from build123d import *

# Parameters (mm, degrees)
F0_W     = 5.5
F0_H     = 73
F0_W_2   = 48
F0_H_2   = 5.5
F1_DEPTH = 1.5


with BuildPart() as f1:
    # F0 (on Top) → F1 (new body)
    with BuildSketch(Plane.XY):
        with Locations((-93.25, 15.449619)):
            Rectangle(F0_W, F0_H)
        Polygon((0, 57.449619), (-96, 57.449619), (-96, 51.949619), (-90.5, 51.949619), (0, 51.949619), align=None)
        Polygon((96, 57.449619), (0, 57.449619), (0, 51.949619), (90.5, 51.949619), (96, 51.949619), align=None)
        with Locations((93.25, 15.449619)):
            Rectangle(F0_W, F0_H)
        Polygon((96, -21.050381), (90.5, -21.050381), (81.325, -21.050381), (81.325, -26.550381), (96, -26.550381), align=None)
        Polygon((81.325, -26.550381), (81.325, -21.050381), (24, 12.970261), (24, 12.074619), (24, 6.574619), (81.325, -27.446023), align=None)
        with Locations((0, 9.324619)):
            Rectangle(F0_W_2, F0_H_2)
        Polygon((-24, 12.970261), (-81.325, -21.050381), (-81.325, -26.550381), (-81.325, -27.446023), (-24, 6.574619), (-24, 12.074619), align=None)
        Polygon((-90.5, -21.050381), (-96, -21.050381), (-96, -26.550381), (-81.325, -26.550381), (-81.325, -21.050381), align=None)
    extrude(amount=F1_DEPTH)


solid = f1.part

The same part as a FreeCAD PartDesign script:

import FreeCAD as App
import Part
import Sketcher

V = App.Vector

doc = App.newDocument("Part")
body = doc.addObject("PartDesign::Body", "Body")

# Sketch on XY plane
sketch1 = body.newObject("Sketcher::SketchObject", "Sketch")
sketch1.AttachmentSupport = (doc.getObject("XY_Plane"), [""])
sketch1.MapMode = "FlatFace"
sketch1.addGeometry([
    Part.LineSegment(V(-81.325, -26.550381, 0), V(-81.325, -27.446023, 0)),  # 0
    Part.LineSegment(V(-81.325, -27.446023, 0), V(-24, 6.574619, 0)),  # 1
    Part.LineSegment(V(-24, 6.574619, 0), V(24, 6.574619, 0)),  # 2
    Part.LineSegment(V(24, 6.574619, 0), V(81.325, -27.446023, 0)),  # 3
    Part.LineSegment(V(81.325, -27.446023, 0), V(81.325, -26.550381, 0)),  # 4
    Part.LineSegment(V(81.325, -26.550381, 0), V(96, -26.550381, 0)),  # 5
    Part.LineSegment(V(96, -26.550381, 0), V(96, 57.449619, 0)),  # 6
    Part.LineSegment(V(96, 57.449619, 0), V(-96, 57.449619, 0)),  # 7
    Part.LineSegment(V(-96, 57.449619, 0), V(-96, -26.550381, 0)),  # 8
    Part.LineSegment(V(-96, -26.550381, 0), V(-81.325, -26.550381, 0)),  # 9
    Part.LineSegment(V(-90.5, -21.050381, 0), V(-90.5, 51.949619, 0)),  # 10
    Part.LineSegment(V(-90.5, 51.949619, 0), V(90.5, 51.949619, 0)),  # 11
    Part.LineSegment(V(90.5, 51.949619, 0), V(90.5, -21.050381, 0)),  # 12
    Part.LineSegment(V(90.5, -21.050381, 0), V(81.325, -21.050381, 0)),  # 13
    Part.LineSegment(V(81.325, -21.050381, 0), V(24, 12.970261, 0)),  # 14
    Part.LineSegment(V(24, 12.970261, 0), V(24, 12.074619, 0)),  # 15
    Part.LineSegment(V(24, 12.074619, 0), V(-24, 12.074619, 0)),  # 16
    Part.LineSegment(V(-24, 12.074619, 0), V(-24, 12.970261, 0)),  # 17
    Part.LineSegment(V(-24, 12.970261, 0), V(-81.325, -21.050381, 0)),  # 18
    Part.LineSegment(V(-81.325, -21.050381, 0), V(-90.5, -21.050381, 0)),  # 19
], False)
sketch1.addConstraint([
    Sketcher.Constraint("Coincident", 0, 2, 1, 1),
    Sketcher.Constraint("Coincident", 1, 2, 2, 1),
    Sketcher.Constraint("Coincident", 2, 2, 3, 1),
    Sketcher.Constraint("Coincident", 3, 2, 4, 1),
    Sketcher.Constraint("Coincident", 4, 2, 5, 1),
    Sketcher.Constraint("Coincident", 5, 2, 6, 1),
    Sketcher.Constraint("Coincident", 6, 2, 7, 1),
    Sketcher.Constraint("Coincident", 7, 2, 8, 1),
    Sketcher.Constraint("Coincident", 8, 2, 9, 1),
    Sketcher.Constraint("Coincident", 9, 2, 0, 1),
    Sketcher.Constraint("Coincident", 10, 2, 11, 1),
    Sketcher.Constraint("Coincident", 11, 2, 12, 1),
    Sketcher.Constraint("Coincident", 12, 2, 13, 1),
    Sketcher.Constraint("Coincident", 13, 2, 14, 1),
    Sketcher.Constraint("Coincident", 14, 2, 15, 1),
    Sketcher.Constraint("Coincident", 15, 2, 16, 1),
    Sketcher.Constraint("Coincident", 16, 2, 17, 1),
    Sketcher.Constraint("Coincident", 17, 2, 18, 1),
    Sketcher.Constraint("Coincident", 18, 2, 19, 1),
    Sketcher.Constraint("Coincident", 19, 2, 10, 1),
    Sketcher.Constraint("Vertical", 0),
    Sketcher.Constraint("Horizontal", 2),
    Sketcher.Constraint("Vertical", 4),
    Sketcher.Constraint("Horizontal", 5),
    Sketcher.Constraint("Vertical", 6),
    Sketcher.Constraint("Horizontal", 7),
    Sketcher.Constraint("Vertical", 8),
    Sketcher.Constraint("Horizontal", 9),
    Sketcher.Constraint("Vertical", 10),
    Sketcher.Constraint("Horizontal", 11),
    Sketcher.Constraint("Vertical", 12),
    Sketcher.Constraint("Horizontal", 13),
    Sketcher.Constraint("Vertical", 15),
    Sketcher.Constraint("Horizontal", 16),
    Sketcher.Constraint("Vertical", 17),
    Sketcher.Constraint("Horizontal", 19),
    Sketcher.Constraint("Symmetric", 0, 2, 3, 2, -2),
    Sketcher.Constraint("Symmetric", 5, 2, 8, 2, -2),
    Sketcher.Constraint("Symmetric", 14, 2, 17, 2, -2),
    Sketcher.Constraint("Symmetric", 13, 2, 18, 2, -2),
    Sketcher.Constraint("Parallel", 3, 14),
    Sketcher.Constraint("Parallel", 1, 18),
    Sketcher.Constraint("Vertical", 4, 2, 13, 2),
    Sketcher.Constraint("Vertical", 2, 2, 14, 2),
    Sketcher.Constraint("Equal", 13, 19),
    Sketcher.Constraint("Equal", 4, 15),
    Sketcher.Constraint("DistanceX", 2, 1, 2, 2, 48.0),
    Sketcher.Constraint("DistanceX", 7, 2, 7, 1, 192.0),
    Sketcher.Constraint("DistanceX", 11, 1, 11, 2, 181.0),
    Sketcher.Constraint("DistanceY", 6, 1, 6, 2, 84.0),
    Sketcher.Constraint("DistanceY", 10, 1, 10, 2, 73.0),
    Sketcher.Constraint("DistanceY", 10, 2, 7, 2, 5.5),
    Sketcher.Constraint("DistanceX", 5, 1, 5, 2, 14.675),
    Sketcher.Constraint("DistanceY", 4, 2, 2, 2, 33.125),
    Sketcher.Constraint("DistanceY", 0, 2, 0, 1, 0.895642),
    Sketcher.Constraint("DistanceY", -1, 1, 1, 2, 6.574619),
])
pad1 = body.newObject("PartDesign::Pad", "Pad")
pad1.Profile = sketch1
pad1.Length = 1.5

doc.recompute()
